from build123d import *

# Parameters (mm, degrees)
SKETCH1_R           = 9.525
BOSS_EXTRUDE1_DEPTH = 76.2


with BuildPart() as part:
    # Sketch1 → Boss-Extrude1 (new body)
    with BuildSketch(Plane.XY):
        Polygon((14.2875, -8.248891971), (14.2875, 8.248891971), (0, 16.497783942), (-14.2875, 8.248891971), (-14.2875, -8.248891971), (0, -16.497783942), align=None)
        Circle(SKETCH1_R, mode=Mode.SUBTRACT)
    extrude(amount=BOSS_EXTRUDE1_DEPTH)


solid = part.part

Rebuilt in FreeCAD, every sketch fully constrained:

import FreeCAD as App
import Part
import Sketcher

V = App.Vector
Q = App.Units.Quantity

doc = App.newDocument("Part")
params = doc.addObject("Spreadsheet::Sheet", "Params")
for row, (alias, value) in enumerate([
    ("sketch1_diameter", "0.75 in"),
    ("pad1_length", "3 in"),
], start=1):
    params.set(f"A{row}", alias)
    params.set(f"B{row}", "=" + value)
    params.setAlias(f"B{row}", alias)

body = doc.addObject("PartDesign::Body", "Body")

# Sketch on XY plane
sketch1 = body.newObject("Sketcher::SketchObject", "Sketch")
sketch1.AttachmentSupport = (doc.getObject("XY_Plane"), [""])
sketch1.MapMode = "FlatFace"
sketch1.addGeometry([
    Part.LineSegment(V(14, -8, 0), V(14, 8, 0)),  # 0
    Part.LineSegment(V(14, 8, 0), V(0, 16, 0)),  # 1
    Part.LineSegment(V(0, 16, 0), V(-14, 8, 0)),  # 2
    Part.LineSegment(V(-14, 8, 0), V(-14, -8, 0)),  # 3
    Part.LineSegment(V(-14, -8, 0), V(0, -16, 0)),  # 4
    Part.LineSegment(V(0, -16, 0), V(14, -8, 0)),  # 5
    Part.Circle(V(0, 0, 0), V(0, 0, 1), 10),  # 6
], False)
sketch1.addConstraint([
    Sketcher.Constraint("Coincident", 0, 2, 1, 1),
    Sketcher.Constraint("Coincident", 1, 2, 2, 1),
    Sketcher.Constraint("Coincident", 2, 2, 3, 1),
    Sketcher.Constraint("Coincident", 3, 2, 4, 1),
    Sketcher.Constraint("Coincident", 4, 2, 5, 1),
    Sketcher.Constraint("Coincident", 5, 2, 0, 1),
    Sketcher.Constraint("Vertical", 0),
    Sketcher.Constraint("Vertical", 3),
    Sketcher.Constraint("Coincident", 6, 3, -1, 1),
    Sketcher.Constraint("Symmetric", 0, 2, 3, 2, -1, 1),
    Sketcher.Constraint("Symmetric", 1, 2, 4, 2, -1, 1),
    Sketcher.Constraint("PointOnObject", 1, 2, -2),
    Sketcher.Constraint("Parallel", 2, 5),
    Sketcher.Constraint("Horizontal", 0, 2, 2, 2),
    Sketcher.Constraint("Diameter", 6, Q("0.75 in")),
    Sketcher.Constraint("Angle", 1, Q("150 deg")),
    Sketcher.Constraint("DistanceX", -1, 1, 0, 2, Q("0.5625 in")),
    Sketcher.Constraint("DistanceY", 0, 1, 0, 2, 16.497784),
])
sketch1.setExpression("Constraints[14]", "Params.sketch1_diameter")
pad1 = body.newObject("PartDesign::Pad", "Pad")
pad1.Profile = sketch1
pad1.setExpression("Length", "Params.pad1_length")

doc.recompute()
